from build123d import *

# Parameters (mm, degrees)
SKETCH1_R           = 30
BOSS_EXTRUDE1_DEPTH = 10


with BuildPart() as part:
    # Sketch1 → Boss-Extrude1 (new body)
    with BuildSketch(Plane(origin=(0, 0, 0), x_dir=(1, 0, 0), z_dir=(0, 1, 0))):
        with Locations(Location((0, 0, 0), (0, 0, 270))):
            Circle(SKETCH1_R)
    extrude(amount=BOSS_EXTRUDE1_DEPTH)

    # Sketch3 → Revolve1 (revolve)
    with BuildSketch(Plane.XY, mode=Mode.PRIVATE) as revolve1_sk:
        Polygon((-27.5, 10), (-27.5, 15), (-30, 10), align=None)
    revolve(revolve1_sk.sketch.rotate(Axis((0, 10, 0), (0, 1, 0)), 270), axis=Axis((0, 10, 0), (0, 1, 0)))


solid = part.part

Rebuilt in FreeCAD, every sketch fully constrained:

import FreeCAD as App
import Part
import Sketcher


def add_polygon(sketch, points):
    """Adds a closed chain of lines whose ends are joined by coincident constraints."""
    first, n = sketch.GeometryCount, len(points)
    for a, b in zip(points, points[1:] + points[:1]):
        sketch.addGeometry(Part.LineSegment(App.Vector(*a, 0), App.Vector(*b, 0)), False)
    for i in range(n):
        sketch.addConstraint(Sketcher.Constraint("Coincident", first + i, 2, first + (i + 1) % n, 1))

doc = App.newDocument("Part")
body = doc.addObject("PartDesign::Body", "Body")

# Sketch on XZ plane
sketch1 = body.newObject("Sketcher::SketchObject", "Sketch")
sketch1.AttachmentSupport = (doc.getObject("XZ_Plane"), [""])
sketch1.MapMode = "FlatFace"
sketch1.addGeometry(Part.Circle(App.Vector(0, 0, 0), App.Vector(0, 0, 1), 30), False)
sketch1.addConstraint([
    Sketcher.Constraint("Coincident", 0, 3, -1, 1),
    Sketcher.Constraint("Diameter", 0, 60.0),
])
pad1 = body.newObject("PartDesign::Pad", "Pad")
pad1.Profile = sketch1
pad1.Length = 10
pad1.Reversed = True

# Sketch on XY plane
sketch2 = body.newObject("Sketcher::SketchObject", "Sketch001")
sketch2.AttachmentSupport = (doc.getObject("XY_Plane"), [""])
sketch2.MapMode = "FlatFace"
add_polygon(sketch2, [(-27.5, 10), (-27.5, 15), (-30, 10)])  # lines 0-2
sketch2.addConstraint([
    Sketcher.Constraint("Vertical", 0),
    Sketcher.Constraint("Horizontal", 2),
    Sketcher.Constraint("DistanceY", 0, 1, 0, 2, 5.0),
    Sketcher.Constraint("DistanceX", 2, 1, 2, 2, 2.5),
    Sketcher.Constraint("DistanceY", -1, 1, 0, 2, 15.0),
    Sketcher.Constraint("DistanceX", 1, 2, -1, 1, 30.0),
])
revolution = body.newObject("PartDesign::Revolution", "Revolution")
revolution.Profile = sketch2
revolution.ReferenceAxis = (sketch2, ["V_Axis"])
revolution.Angle = 360

doc.recompute()
